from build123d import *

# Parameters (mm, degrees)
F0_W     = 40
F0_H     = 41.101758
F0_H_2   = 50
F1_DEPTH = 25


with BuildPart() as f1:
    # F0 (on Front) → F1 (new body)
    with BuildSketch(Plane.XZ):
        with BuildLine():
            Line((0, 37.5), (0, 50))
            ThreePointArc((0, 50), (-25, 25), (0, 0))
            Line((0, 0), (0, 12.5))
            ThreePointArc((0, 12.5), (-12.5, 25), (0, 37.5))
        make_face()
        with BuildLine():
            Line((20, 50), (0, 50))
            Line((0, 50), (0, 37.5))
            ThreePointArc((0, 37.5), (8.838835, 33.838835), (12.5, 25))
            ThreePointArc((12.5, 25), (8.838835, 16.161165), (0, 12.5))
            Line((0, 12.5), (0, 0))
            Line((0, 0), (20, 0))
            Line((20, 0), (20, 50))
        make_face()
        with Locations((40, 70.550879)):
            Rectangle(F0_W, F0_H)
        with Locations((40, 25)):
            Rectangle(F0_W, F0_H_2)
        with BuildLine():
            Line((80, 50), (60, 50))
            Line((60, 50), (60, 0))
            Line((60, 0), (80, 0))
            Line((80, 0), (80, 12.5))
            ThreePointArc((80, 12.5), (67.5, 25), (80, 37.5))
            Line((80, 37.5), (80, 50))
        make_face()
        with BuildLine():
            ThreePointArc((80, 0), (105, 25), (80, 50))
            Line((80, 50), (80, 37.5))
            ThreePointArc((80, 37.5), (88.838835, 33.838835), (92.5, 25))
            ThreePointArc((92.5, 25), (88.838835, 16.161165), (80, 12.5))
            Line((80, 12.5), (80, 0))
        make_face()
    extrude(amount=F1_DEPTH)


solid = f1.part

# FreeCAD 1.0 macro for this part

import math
import FreeCAD as App
import Part
import Sketcher

V = App.Vector

doc = App.newDocument("Part")
params = doc.addObject("Spreadsheet::Sheet", "Params")
for row, (alias, value) in enumerate([
    ("sketch1_radius", "25 mm"),
    ("sketch1_radius2", "12.5 mm"),
    ("sketch1_width", "80 mm"),
    ("sketch1_width2", "20 mm"),
    ("pad1_length", "25 mm"),
], start=1):
    params.set(f"A{row}", alias)
    params.set(f"B{row}", "=" + value)
    params.setAlias(f"B{row}", alias)

body = doc.addObject("PartDesign::Body", "Body")

# Sketch on XZ plane
sketch1 = body.newObject("Sketcher::SketchObject", "Sketch")
sketch1.AttachmentSupport = (doc.getObject("XZ_Plane"), [""])
sketch1.MapMode = "FlatFace"
sketch1.addGeometry(Part.ArcOfCircle(Part.Circle(V(0, 25, 0), V(0, 0, 1), 25), math.radians(90), math.radians(270)), False)
sketch1.addGeometry(Part.LineSegment(V(0, 0, 0), V(80, 0, 0)), False)
sketch1.addGeometry(Part.ArcOfCircle(Part.Circle(V(80, 25, 0), V(0, 0, 1), 25), math.radians(-90), math.radians(90)), False)
sketch1.addGeometry(Part.LineSegment(V(80, 50, 0), V(60, 50, 0)), False)
sketch1.addGeometry(Part.LineSegment(V(60, 50, 0), V(60, 91, 0)), False)
sketch1.addGeometry(Part.LineSegment(V(60, 91, 0), V(20, 91, 0)), False)
sketch1.addGeometry(Part.LineSegment(V(20, 91, 0), V(20, 50, 0)), False)
sketch1.addGeometry(Part.LineSegment(V(20, 50, 0), V(0, 50, 0)), False)
sketch1.addGeometry(Part.ArcOfCircle(Part.Circle(V(80, 25, 0), V(0, 0, 1), 12), math.radians(90), math.radians(270)), False)
sketch1.addGeometry(Part.ArcOfCircle(Part.Circle(V(80, 25, 0), V(0, 0, 1), 12), math.radians(0), math.radians(90)), False)
sketch1.addGeometry(Part.ArcOfCircle(Part.Circle(V(80, 25, 0), V(0, 0, 1), 12), math.radians(-90), math.radians(0)), False)
sketch1.addGeometry(Part.ArcOfCircle(Part.Circle(V(0, 25, 0), V(0, 0, 1), 12), math.radians(90), math.radians(270)), False)
sketch1.addGeometry(Part.ArcOfCircle(Part.Circle(V(0, 25, 0), V(0, 0, 1), 12), math.radians(0), math.radians(90)), False)
sketch1.addGeometry(Part.ArcOfCircle(Part.Circle(V(0, 25, 0), V(0, 0, 1), 12), math.radians(-90), math.radians(0)), False)
sketch1.addConstraint(Sketcher.Constraint("Tangent", 0, 2, 1, 1))
sketch1.addConstraint(Sketcher.Constraint("Tangent", 1, 2, 2, 1))
sketch1.addConstraint(Sketcher.Constraint("Tangent", 2, 2, 3, 1))
sketch1.addConstraint(Sketcher.Constraint("Coincident", 3, 2, 4, 1))
sketch1.addConstraint(Sketcher.Constraint("Coincident", 4, 2, 5, 1))
sketch1.addConstraint(Sketcher.Constraint("Coincident", 5, 2, 6, 1))
sketch1.addConstraint(Sketcher.Constraint("Coincident", 6, 2, 7, 1))
sketch1.addConstraint(Sketcher.Constraint("Tangent", 7, 2, 0, 1))
sketch1.addConstraint(Sketcher.Constraint("Tangent", 8, 1, 9, 2))
sketch1.addConstraint(Sketcher.Constraint("Tangent", 9, 1, 10, 2))
sketch1.addConstraint(Sketcher.Constraint("Tangent", 10, 1, 8, 2))
sketch1.addConstraint(Sketcher.Constraint("Tangent", 11, 1, 12, 2))
sketch1.addConstraint(Sketcher.Constraint("Tangent", 12, 1, 13, 2))
sketch1.addConstraint(Sketcher.Constraint("Tangent", 13, 1, 11, 2))
sketch1.addConstraint(Sketcher.Constraint("Horizontal", 1))
sketch1.addConstraint(Sketcher.Constraint("Horizontal", 3))
sketch1.addConstraint(Sketcher.Constraint("Vertical", 4))
sketch1.addConstraint(Sketcher.Constraint("Horizontal", 5))
sketch1.addConstraint(Sketcher.Constraint("Vertical", 6))
sketch1.addConstraint(Sketcher.Constraint("Horizontal", 7))
sketch1.addConstraint(Sketcher.Constraint("Coincident", 0, 2, -1, 1))
sketch1.addConstraint(Sketcher.Constraint("Coincident", 8, 3, 2, 3))
sketch1.addConstraint(Sketcher.Constraint("Coincident", 11, 3, 0, 3))
sketch1.addConstraint(Sketcher.Constraint("Equal", 0, 2))
sketch1.addConstraint(Sketcher.Constraint("Equal", 10, 11))
sketch1.addConstraint(Sketcher.Constraint("PointOnObject", 11, 1, -2))
sketch1.addConstraint(Sketcher.Constraint("PointOnObject", 13, 1, -2))
sketch1.addConstraint(Sketcher.Constraint("Horizontal", 13, 3, 9, 1))
sketch1.addConstraint(Sketcher.Constraint("Horizontal", 9, 1, 12, 1))
sketch1.addConstraint(Sketcher.Constraint("Vertical", 2, 2, 8, 1))
sketch1.addConstraint(Sketcher.Constraint("Vertical", 8, 1, 10, 1))
sketch1.addConstraint(Sketcher.Constraint("Equal", 3, 7))
sketch1.addConstraint(Sketcher.Constraint("Radius", 0, 25.0))
sketch1.addConstraint(Sketcher.Constraint("Radius", 8, 12.5))
sketch1.addConstraint(Sketcher.Constraint("DistanceX", 1, 1, 1, 2, 80.0))
sketch1.addConstraint(Sketcher.Constraint("DistanceX", 3, 2, 3, 1, 20.0))
sketch1.addConstraint(Sketcher.Constraint("DistanceY", 4, 1, 4, 2, 41.101758))
sketch1.setExpression("Constraints[32]", "Params.sketch1_radius")
sketch1.setExpression("Constraints[33]", "Params.sketch1_radius2")
sketch1.setExpression("Constraints[34]", "Params.sketch1_width")
sketch1.setExpression("Constraints[35]", "Params.sketch1_width2")
pad1 = body.newObject("PartDesign::Pad", "Pad")
pad1.Profile = sketch1
pad1.setExpression("Length", "Params.pad1_length")

doc.recompute()
